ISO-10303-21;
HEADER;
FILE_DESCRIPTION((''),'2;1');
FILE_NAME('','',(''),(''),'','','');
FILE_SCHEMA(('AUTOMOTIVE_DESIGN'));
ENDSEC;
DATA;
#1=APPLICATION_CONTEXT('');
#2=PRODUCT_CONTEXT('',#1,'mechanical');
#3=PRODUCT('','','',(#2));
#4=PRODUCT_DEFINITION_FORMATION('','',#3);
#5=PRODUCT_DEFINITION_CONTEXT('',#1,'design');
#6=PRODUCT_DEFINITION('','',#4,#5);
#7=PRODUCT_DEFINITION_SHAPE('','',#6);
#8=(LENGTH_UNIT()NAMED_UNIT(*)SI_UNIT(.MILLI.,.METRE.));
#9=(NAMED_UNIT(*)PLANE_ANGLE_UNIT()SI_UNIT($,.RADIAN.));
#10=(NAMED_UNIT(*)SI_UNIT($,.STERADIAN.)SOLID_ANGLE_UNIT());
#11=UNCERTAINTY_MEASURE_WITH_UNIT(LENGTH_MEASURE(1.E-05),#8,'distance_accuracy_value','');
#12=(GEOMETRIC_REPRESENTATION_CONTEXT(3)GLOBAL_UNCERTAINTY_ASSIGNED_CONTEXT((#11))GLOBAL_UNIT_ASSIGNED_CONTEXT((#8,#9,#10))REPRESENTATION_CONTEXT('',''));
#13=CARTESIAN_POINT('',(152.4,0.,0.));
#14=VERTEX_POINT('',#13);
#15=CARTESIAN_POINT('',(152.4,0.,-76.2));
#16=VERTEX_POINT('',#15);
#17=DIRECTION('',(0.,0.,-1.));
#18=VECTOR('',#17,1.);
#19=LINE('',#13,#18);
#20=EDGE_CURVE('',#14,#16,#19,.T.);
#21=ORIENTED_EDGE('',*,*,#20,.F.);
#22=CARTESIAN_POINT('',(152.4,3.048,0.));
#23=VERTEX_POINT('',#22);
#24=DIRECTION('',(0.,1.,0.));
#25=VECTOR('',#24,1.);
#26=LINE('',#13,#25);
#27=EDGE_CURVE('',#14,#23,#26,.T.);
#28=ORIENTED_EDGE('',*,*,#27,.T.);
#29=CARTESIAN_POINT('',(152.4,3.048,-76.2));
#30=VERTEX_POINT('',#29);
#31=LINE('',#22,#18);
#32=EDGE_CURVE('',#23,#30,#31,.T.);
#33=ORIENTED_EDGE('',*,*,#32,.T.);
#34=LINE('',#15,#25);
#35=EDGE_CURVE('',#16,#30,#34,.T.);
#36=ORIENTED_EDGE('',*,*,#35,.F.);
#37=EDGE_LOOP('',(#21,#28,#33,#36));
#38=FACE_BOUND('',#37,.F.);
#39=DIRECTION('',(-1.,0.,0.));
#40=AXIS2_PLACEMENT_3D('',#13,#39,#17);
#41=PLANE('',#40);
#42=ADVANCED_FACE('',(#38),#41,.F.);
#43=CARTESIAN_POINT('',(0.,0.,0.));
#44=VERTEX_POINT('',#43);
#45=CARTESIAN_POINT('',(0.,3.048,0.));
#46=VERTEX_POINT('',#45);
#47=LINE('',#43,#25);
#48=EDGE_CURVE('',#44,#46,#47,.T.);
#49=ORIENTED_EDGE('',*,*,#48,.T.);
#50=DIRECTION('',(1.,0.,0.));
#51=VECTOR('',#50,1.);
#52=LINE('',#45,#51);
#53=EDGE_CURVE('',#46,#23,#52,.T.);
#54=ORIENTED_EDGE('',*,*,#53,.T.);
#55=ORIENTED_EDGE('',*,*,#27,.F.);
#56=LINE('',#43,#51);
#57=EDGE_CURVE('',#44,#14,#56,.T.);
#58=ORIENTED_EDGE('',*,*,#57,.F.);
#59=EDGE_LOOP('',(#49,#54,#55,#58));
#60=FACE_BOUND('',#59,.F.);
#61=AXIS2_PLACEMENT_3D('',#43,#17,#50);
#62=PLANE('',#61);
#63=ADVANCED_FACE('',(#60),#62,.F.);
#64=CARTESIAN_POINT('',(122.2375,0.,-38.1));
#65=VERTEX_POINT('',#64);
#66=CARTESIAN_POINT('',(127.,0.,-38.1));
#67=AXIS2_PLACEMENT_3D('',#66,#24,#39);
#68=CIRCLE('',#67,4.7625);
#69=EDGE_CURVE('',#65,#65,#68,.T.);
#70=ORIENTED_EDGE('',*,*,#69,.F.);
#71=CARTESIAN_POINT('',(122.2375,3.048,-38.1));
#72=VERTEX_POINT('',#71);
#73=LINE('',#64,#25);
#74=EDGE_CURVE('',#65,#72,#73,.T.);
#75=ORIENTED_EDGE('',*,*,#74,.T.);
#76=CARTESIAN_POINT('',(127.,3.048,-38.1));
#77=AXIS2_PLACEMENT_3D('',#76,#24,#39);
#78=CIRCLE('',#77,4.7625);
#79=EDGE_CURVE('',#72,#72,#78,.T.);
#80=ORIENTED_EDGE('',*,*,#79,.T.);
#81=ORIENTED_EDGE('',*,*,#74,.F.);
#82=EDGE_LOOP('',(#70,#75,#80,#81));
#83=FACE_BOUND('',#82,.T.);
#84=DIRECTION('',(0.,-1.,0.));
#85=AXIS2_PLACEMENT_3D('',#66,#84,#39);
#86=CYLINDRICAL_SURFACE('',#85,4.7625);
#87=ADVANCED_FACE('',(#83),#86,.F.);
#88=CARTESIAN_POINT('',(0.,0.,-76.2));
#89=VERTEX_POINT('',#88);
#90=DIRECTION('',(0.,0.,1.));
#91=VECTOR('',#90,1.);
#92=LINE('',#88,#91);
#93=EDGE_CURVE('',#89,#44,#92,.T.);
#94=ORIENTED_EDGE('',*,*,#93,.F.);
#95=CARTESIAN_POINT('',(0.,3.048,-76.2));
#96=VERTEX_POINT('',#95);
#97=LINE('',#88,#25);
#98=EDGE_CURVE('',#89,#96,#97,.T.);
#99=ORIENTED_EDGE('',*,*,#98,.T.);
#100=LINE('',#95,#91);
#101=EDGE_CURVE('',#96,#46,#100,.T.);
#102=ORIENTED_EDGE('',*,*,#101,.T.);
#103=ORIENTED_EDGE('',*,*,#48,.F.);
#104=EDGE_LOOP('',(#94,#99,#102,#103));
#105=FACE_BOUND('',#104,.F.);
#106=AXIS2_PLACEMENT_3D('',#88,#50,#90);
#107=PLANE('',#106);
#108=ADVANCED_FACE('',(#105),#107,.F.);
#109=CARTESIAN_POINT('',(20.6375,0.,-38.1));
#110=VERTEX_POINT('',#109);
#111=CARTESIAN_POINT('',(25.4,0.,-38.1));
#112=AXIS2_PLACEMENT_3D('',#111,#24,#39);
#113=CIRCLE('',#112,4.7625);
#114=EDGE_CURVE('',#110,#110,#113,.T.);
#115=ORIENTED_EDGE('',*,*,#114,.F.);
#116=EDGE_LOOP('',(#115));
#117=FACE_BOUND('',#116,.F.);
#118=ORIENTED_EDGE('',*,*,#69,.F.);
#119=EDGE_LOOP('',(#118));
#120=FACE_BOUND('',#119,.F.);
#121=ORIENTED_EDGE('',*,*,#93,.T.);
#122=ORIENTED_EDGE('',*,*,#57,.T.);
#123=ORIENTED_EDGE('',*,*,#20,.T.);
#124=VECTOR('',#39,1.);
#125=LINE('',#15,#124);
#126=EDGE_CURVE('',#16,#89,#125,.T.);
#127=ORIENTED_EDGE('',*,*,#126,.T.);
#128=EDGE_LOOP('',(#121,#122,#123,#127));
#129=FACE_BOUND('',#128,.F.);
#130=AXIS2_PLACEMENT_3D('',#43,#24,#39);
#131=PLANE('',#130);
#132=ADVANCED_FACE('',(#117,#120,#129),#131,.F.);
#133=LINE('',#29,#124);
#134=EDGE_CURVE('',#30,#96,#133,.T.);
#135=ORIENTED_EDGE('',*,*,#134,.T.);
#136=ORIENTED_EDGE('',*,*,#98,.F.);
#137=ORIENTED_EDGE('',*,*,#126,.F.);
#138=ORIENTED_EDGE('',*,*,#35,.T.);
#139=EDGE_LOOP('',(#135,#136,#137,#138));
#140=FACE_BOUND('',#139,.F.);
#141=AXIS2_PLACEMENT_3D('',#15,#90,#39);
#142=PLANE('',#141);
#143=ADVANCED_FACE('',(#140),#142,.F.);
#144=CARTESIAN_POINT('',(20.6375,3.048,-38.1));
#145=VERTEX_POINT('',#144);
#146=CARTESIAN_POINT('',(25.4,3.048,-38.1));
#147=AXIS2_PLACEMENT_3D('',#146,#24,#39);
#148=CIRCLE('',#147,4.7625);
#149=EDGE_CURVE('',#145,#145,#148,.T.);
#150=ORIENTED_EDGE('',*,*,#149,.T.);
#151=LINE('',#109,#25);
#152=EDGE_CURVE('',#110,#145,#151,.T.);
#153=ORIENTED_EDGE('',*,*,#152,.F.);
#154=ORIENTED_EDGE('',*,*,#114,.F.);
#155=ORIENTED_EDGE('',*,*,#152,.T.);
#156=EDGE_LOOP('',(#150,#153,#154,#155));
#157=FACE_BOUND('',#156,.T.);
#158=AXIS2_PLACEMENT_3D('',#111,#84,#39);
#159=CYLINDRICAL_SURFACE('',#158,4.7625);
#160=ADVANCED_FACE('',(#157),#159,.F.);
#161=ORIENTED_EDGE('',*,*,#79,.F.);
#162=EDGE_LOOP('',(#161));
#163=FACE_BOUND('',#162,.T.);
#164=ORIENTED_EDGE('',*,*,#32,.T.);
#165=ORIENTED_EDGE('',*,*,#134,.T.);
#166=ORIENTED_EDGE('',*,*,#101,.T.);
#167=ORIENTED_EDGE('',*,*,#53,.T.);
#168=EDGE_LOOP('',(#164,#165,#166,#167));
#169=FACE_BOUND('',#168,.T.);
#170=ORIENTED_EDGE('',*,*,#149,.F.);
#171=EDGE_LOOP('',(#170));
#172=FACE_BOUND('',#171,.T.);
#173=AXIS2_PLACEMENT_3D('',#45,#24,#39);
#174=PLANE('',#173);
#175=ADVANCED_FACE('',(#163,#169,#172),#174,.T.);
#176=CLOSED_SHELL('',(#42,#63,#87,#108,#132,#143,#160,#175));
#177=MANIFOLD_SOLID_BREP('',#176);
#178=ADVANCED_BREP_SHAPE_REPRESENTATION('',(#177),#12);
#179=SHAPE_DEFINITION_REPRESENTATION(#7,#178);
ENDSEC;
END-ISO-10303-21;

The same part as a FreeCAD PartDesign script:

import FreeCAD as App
import Part
import Sketcher
from FreeCAD import Vector
Q = App.Units.Quantity

doc = App.newDocument("Part")
params = doc.addObject("Spreadsheet::Sheet", "Params")
for row, (alias, value) in enumerate([
    ("sketch1_width", "6 in"),
    ("sketch1_height", "3 in"),
    ("sketch1_diameter", "0.375 in"),
    ("pad1_length", "0.12 in"),
], start=1):
    params.set(f"A{row}", alias)
    params.set(f"B{row}", "=" + value)
    params.setAlias(f"B{row}", alias)

body = doc.addObject("PartDesign::Body", "Body")

# Sketch on XZ plane
sketch1 = doc.addObject("Sketcher::SketchObject", "Sketch")
body.addObject(sketch1)
sketch1.AttachmentSupport = (doc.XZ_Plane, [""])
sketch1.MapMode = "FlatFace"
sketch1.addGeometry(Part.LineSegment(Vector(0, -76.2, 0), Vector(0, 0, 0)), False)
sketch1.addGeometry(Part.LineSegment(Vector(0, 0, 0), Vector(152.4, 0, 0)), False)
sketch1.addGeometry(Part.LineSegment(Vector(152.4, 0, 0), Vector(152.4, -76.2, 0)), False)
sketch1.addGeometry(Part.LineSegment(Vector(152.4, -76.2, 0), Vector(0, -76.2, 0)), False)
sketch1.addGeometry(Part.Circle(Vector(127, -38.1, 0), Vector(0, 0, 1), 4.8), False)
sketch1.addGeometry(Part.Circle(Vector(25.4, -38.1, 0), Vector(0, 0, 1), 4.8), False)
sketch1.addConstraint(Sketcher.Constraint("Coincident", 0, 2, 1, 1))
sketch1.addConstraint(Sketcher.Constraint("Coincident", 1, 2, 2, 1))
sketch1.addConstraint(Sketcher.Constraint("Coincident", 2, 2, 3, 1))
sketch1.addConstraint(Sketcher.Constraint("Coincident", 3, 2, 0, 1))
sketch1.addConstraint(Sketcher.Constraint("Vertical", 0))
sketch1.addConstraint(Sketcher.Constraint("Horizontal", 1))
sketch1.addConstraint(Sketcher.Constraint("Vertical", 2))
sketch1.addConstraint(Sketcher.Constraint("Horizontal", 3))
sketch1.addConstraint(Sketcher.Constraint("Coincident", 0, 2, -1, 1))
sketch1.addConstraint(Sketcher.Constraint("Equal", 4, 5))
sketch1.addConstraint(Sketcher.Constraint("Horizontal", 4, 3, 5, 3))
sketch1.addConstraint(Sketcher.Constraint("DistanceX", 1, 1, 1, 2, Q("6 in")))
sketch1.addConstraint(Sketcher.Constraint("DistanceY", 0, 1, 0, 2, Q("3 in")))
sketch1.addConstraint(Sketcher.Constraint("Diameter", 4, Q("0.375 in")))
sketch1.addConstraint(Sketcher.Constraint("DistanceX", -1, 1, 4, 3, Q("5 in")))
sketch1.addConstraint(Sketcher.Constraint("DistanceX", -1, 1, 5, 3, Q("1 in")))
sketch1.addConstraint(Sketcher.Constraint("DistanceY", 4, 3, -1, 1, Q("1.5 in")))
sketch1.setExpression("Constraints[11]", "Params.sketch1_width")
sketch1.setExpression("Constraints[12]", "Params.sketch1_height")
sketch1.setExpression("Constraints[13]", "Params.sketch1_diameter")
pad1 = doc.addObject("PartDesign::Pad", "Pad")
body.addObject(pad1)
pad1.Profile = sketch1
pad1.setExpression("Length", "Params.pad1_length")
pad1.Reversed = True

doc.recompute()
